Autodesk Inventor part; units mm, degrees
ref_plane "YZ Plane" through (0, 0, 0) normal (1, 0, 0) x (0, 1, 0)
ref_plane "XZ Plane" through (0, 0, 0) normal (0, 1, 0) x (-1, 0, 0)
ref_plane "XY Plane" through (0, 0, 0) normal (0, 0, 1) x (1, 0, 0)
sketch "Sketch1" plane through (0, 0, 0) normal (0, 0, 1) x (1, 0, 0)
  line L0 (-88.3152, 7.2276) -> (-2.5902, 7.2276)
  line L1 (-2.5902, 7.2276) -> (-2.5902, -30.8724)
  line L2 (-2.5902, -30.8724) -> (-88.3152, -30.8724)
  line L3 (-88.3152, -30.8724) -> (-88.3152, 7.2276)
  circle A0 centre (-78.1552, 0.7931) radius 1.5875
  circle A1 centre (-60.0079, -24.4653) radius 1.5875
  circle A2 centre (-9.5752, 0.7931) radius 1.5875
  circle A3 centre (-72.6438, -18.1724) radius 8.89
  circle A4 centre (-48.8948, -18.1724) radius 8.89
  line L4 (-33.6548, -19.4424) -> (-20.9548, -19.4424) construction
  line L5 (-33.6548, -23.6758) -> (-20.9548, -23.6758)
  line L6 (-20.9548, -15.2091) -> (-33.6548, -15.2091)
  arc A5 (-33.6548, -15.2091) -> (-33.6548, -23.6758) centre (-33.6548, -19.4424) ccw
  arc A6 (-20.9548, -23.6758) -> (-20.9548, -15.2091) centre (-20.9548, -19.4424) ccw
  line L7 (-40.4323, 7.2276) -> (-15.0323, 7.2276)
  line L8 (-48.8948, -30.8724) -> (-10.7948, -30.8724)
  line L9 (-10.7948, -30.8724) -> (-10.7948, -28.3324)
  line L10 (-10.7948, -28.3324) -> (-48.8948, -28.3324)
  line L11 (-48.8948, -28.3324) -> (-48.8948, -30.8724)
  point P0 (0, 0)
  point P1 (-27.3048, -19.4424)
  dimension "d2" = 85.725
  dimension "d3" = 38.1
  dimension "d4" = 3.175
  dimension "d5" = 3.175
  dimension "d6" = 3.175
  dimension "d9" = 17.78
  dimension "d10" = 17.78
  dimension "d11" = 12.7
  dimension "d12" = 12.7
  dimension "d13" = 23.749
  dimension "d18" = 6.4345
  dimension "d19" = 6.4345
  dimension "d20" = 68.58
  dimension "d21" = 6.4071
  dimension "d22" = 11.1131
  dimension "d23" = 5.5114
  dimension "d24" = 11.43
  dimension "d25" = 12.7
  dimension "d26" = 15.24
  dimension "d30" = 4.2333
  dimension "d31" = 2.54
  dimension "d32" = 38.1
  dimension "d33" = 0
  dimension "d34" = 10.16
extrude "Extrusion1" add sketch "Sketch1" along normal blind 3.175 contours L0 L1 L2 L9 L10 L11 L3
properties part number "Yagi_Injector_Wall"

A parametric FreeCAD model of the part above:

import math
import FreeCAD as App
import Part
import Sketcher
from FreeCAD import Vector
Q = App.Units.Quantity

doc = App.newDocument("Part")
body = doc.addObject("PartDesign::Body", "Body")

sketch1 = body.newObject("Sketcher::SketchObject", "Sketch")
sketch1.AttachmentSupport = (doc.getObject("XY_Plane"), [""])
sketch1.MapMode = "FlatFace"
sketch1.addGeometry([
    Part.LineSegment(Vector(-2.5902, 7.2276, 0), Vector(-88.3152, 7.2276, 0)),
    Part.LineSegment(Vector(-88.3152, 7.2276, 0), Vector(-88.3152, -30.8724, 0)),
    Part.LineSegment(Vector(-88.3152, -30.8724, 0), Vector(-48.8948, -30.8724, 0)),
    Part.LineSegment(Vector(-48.8948, -30.8724, 0), Vector(-48.8948, -28.3324, 0)),
    Part.LineSegment(Vector(-48.8948, -28.3324, 0), Vector(-10.7948, -28.3324, 0)),
    Part.LineSegment(Vector(-10.7948, -28.3324, 0), Vector(-10.7948, -30.8724, 0)),
    Part.LineSegment(Vector(-10.7948, -30.8724, 0), Vector(-2.5902, -30.8724, 0)),
    Part.LineSegment(Vector(-2.5902, -30.8724, 0), Vector(-2.5902, 7.2276, 0)),
    Part.Circle(Vector(-60.0079, -24.4653, 0), Vector(0, 0, 1), 1.5875),
    Part.Circle(Vector(-72.6438, -18.1724, 0), Vector(0, 0, 1), 8.89),
    Part.Circle(Vector(-48.8948, -18.1724, 0), Vector(0, 0, 1), 8.89),
    Part.LineSegment(Vector(-20.9548, -23.6758, 0), Vector(-33.6548, -23.6758, 0)),
    Part.ArcOfCircle(Part.Circle(Vector(-33.6548, -19.4424, 0), Vector(0, 0, 1), 4.2333), math.radians(90), math.radians(270)),
    Part.LineSegment(Vector(-33.6548, -15.2091, 0), Vector(-20.9548, -15.2091, 0)),
    Part.ArcOfCircle(Part.Circle(Vector(-20.9548, -19.4424, 0), Vector(0, 0, 1), 4.2334), math.radians(-90), math.radians(90)),
    Part.Circle(Vector(-78.1552, 0.7931, 0), Vector(0, 0, 1), 1.5875),
    Part.Circle(Vector(-9.5752, 0.7931, 0), Vector(0, 0, 1), 1.5875),
], False)
sketch1.addConstraint([
    Sketcher.Constraint("Coincident", 0, 2, 1, 1),
    Sketcher.Constraint("Coincident", 1, 2, 2, 1),
    Sketcher.Constraint("Coincident", 2, 2, 3, 1),
    Sketcher.Constraint("Coincident", 3, 2, 4, 1),
    Sketcher.Constraint("Coincident", 4, 2, 5, 1),
    Sketcher.Constraint("Coincident", 5, 2, 6, 1),
    Sketcher.Constraint("Coincident", 6, 2, 7, 1),
    Sketcher.Constraint("Coincident", 7, 2, 0, 1),
    Sketcher.Constraint("Tangent", 11, 2, 12, 2),
    Sketcher.Constraint("Tangent", 12, 1, 13, 1),
    Sketcher.Constraint("Tangent", 13, 2, 14, 2),
    Sketcher.Constraint("Tangent", 14, 1, 11, 1),
    Sketcher.Constraint("Horizontal", 0),
    Sketcher.Constraint("Vertical", 1),
    Sketcher.Constraint("Horizontal", 2),
    Sketcher.Constraint("Vertical", 3),
    Sketcher.Constraint("Horizontal", 4),
    Sketcher.Constraint("Vertical", 5),
    Sketcher.Constraint("Horizontal", 6),
    Sketcher.Constraint("Vertical", 7),
    Sketcher.Constraint("Horizontal", 11),
    Sketcher.Constraint("Horizontal", 13),
    Sketcher.Constraint("Equal", 9, 10),
    Sketcher.Constraint("Equal", 8, 15),
    Sketcher.Constraint("Equal", 15, 16),
    Sketcher.Constraint("Horizontal", 9, 3, 10, 3),
    Sketcher.Constraint("Horizontal", 15, 3, 16, 3),
    Sketcher.Constraint("Horizontal", 2, 2, 5, 2),
    Sketcher.Constraint("Vertical", 10, 3, 2, 2),
    Sketcher.Constraint("Equal", 4, 1),
    Sketcher.Constraint("Diameter", 9, Q("0.7 in")),
    Sketcher.Constraint("Diameter", 8, Q("0.125 in")),
    Sketcher.Constraint("DistanceX", 4, 1, 4, 2, Q("1.5 in")),
    Sketcher.Constraint("DistanceX", 11, 2, 11, 1, Q("0.5 in")),
    Sketcher.Constraint("DistanceY", 3, 1, 3, 2, Q("0.1 in")),
    Sketcher.Constraint("DistanceX", 10, 3, 12, 3, Q("0.6 in")),
    Sketcher.Constraint("DistanceX", 0, 2, 15, 3, Q("0.4 in")),
    Sketcher.Constraint("DistanceY", 1, 2, 9, 3, Q("0.5 in")),
    Sketcher.Constraint("DistanceX", 0, 2, 0, 1, Q("3.375 in")),
    Sketcher.Constraint("Radius", 12, 4.2333),
    Sketcher.Constraint("DistanceY", 2, 2, 12, 3, Q("0.45 in")),
    Sketcher.Constraint("DistanceX", 9, 3, 10, 3, Q("0.935 in")),
    Sketcher.Constraint("DistanceX", 9, 3, -1, 1, Q("2.86 in")),
    Sketcher.Constraint("DistanceX", 8, 3, 10, 3, 11.113),
    Sketcher.Constraint("DistanceX", 15, 3, 9, 3, 5.5114),
    Sketcher.Constraint("DistanceY", 15, 3, 0, 2, 6.4345),
    Sketcher.Constraint("DistanceY", 1, 2, 8, 3, 6.407),
    Sketcher.Constraint("DistanceX", 16, 3, 6, 2, Q("0.275 in")),
    Sketcher.Constraint("DistanceY", 8, 3, -1, 1, Q("0.9632 in")),
])
pad1 = body.newObject("PartDesign::Pad", "Pad")
pad1.Profile = sketch1
pad1.Length = Q("0.125 in")

doc.recompute()
